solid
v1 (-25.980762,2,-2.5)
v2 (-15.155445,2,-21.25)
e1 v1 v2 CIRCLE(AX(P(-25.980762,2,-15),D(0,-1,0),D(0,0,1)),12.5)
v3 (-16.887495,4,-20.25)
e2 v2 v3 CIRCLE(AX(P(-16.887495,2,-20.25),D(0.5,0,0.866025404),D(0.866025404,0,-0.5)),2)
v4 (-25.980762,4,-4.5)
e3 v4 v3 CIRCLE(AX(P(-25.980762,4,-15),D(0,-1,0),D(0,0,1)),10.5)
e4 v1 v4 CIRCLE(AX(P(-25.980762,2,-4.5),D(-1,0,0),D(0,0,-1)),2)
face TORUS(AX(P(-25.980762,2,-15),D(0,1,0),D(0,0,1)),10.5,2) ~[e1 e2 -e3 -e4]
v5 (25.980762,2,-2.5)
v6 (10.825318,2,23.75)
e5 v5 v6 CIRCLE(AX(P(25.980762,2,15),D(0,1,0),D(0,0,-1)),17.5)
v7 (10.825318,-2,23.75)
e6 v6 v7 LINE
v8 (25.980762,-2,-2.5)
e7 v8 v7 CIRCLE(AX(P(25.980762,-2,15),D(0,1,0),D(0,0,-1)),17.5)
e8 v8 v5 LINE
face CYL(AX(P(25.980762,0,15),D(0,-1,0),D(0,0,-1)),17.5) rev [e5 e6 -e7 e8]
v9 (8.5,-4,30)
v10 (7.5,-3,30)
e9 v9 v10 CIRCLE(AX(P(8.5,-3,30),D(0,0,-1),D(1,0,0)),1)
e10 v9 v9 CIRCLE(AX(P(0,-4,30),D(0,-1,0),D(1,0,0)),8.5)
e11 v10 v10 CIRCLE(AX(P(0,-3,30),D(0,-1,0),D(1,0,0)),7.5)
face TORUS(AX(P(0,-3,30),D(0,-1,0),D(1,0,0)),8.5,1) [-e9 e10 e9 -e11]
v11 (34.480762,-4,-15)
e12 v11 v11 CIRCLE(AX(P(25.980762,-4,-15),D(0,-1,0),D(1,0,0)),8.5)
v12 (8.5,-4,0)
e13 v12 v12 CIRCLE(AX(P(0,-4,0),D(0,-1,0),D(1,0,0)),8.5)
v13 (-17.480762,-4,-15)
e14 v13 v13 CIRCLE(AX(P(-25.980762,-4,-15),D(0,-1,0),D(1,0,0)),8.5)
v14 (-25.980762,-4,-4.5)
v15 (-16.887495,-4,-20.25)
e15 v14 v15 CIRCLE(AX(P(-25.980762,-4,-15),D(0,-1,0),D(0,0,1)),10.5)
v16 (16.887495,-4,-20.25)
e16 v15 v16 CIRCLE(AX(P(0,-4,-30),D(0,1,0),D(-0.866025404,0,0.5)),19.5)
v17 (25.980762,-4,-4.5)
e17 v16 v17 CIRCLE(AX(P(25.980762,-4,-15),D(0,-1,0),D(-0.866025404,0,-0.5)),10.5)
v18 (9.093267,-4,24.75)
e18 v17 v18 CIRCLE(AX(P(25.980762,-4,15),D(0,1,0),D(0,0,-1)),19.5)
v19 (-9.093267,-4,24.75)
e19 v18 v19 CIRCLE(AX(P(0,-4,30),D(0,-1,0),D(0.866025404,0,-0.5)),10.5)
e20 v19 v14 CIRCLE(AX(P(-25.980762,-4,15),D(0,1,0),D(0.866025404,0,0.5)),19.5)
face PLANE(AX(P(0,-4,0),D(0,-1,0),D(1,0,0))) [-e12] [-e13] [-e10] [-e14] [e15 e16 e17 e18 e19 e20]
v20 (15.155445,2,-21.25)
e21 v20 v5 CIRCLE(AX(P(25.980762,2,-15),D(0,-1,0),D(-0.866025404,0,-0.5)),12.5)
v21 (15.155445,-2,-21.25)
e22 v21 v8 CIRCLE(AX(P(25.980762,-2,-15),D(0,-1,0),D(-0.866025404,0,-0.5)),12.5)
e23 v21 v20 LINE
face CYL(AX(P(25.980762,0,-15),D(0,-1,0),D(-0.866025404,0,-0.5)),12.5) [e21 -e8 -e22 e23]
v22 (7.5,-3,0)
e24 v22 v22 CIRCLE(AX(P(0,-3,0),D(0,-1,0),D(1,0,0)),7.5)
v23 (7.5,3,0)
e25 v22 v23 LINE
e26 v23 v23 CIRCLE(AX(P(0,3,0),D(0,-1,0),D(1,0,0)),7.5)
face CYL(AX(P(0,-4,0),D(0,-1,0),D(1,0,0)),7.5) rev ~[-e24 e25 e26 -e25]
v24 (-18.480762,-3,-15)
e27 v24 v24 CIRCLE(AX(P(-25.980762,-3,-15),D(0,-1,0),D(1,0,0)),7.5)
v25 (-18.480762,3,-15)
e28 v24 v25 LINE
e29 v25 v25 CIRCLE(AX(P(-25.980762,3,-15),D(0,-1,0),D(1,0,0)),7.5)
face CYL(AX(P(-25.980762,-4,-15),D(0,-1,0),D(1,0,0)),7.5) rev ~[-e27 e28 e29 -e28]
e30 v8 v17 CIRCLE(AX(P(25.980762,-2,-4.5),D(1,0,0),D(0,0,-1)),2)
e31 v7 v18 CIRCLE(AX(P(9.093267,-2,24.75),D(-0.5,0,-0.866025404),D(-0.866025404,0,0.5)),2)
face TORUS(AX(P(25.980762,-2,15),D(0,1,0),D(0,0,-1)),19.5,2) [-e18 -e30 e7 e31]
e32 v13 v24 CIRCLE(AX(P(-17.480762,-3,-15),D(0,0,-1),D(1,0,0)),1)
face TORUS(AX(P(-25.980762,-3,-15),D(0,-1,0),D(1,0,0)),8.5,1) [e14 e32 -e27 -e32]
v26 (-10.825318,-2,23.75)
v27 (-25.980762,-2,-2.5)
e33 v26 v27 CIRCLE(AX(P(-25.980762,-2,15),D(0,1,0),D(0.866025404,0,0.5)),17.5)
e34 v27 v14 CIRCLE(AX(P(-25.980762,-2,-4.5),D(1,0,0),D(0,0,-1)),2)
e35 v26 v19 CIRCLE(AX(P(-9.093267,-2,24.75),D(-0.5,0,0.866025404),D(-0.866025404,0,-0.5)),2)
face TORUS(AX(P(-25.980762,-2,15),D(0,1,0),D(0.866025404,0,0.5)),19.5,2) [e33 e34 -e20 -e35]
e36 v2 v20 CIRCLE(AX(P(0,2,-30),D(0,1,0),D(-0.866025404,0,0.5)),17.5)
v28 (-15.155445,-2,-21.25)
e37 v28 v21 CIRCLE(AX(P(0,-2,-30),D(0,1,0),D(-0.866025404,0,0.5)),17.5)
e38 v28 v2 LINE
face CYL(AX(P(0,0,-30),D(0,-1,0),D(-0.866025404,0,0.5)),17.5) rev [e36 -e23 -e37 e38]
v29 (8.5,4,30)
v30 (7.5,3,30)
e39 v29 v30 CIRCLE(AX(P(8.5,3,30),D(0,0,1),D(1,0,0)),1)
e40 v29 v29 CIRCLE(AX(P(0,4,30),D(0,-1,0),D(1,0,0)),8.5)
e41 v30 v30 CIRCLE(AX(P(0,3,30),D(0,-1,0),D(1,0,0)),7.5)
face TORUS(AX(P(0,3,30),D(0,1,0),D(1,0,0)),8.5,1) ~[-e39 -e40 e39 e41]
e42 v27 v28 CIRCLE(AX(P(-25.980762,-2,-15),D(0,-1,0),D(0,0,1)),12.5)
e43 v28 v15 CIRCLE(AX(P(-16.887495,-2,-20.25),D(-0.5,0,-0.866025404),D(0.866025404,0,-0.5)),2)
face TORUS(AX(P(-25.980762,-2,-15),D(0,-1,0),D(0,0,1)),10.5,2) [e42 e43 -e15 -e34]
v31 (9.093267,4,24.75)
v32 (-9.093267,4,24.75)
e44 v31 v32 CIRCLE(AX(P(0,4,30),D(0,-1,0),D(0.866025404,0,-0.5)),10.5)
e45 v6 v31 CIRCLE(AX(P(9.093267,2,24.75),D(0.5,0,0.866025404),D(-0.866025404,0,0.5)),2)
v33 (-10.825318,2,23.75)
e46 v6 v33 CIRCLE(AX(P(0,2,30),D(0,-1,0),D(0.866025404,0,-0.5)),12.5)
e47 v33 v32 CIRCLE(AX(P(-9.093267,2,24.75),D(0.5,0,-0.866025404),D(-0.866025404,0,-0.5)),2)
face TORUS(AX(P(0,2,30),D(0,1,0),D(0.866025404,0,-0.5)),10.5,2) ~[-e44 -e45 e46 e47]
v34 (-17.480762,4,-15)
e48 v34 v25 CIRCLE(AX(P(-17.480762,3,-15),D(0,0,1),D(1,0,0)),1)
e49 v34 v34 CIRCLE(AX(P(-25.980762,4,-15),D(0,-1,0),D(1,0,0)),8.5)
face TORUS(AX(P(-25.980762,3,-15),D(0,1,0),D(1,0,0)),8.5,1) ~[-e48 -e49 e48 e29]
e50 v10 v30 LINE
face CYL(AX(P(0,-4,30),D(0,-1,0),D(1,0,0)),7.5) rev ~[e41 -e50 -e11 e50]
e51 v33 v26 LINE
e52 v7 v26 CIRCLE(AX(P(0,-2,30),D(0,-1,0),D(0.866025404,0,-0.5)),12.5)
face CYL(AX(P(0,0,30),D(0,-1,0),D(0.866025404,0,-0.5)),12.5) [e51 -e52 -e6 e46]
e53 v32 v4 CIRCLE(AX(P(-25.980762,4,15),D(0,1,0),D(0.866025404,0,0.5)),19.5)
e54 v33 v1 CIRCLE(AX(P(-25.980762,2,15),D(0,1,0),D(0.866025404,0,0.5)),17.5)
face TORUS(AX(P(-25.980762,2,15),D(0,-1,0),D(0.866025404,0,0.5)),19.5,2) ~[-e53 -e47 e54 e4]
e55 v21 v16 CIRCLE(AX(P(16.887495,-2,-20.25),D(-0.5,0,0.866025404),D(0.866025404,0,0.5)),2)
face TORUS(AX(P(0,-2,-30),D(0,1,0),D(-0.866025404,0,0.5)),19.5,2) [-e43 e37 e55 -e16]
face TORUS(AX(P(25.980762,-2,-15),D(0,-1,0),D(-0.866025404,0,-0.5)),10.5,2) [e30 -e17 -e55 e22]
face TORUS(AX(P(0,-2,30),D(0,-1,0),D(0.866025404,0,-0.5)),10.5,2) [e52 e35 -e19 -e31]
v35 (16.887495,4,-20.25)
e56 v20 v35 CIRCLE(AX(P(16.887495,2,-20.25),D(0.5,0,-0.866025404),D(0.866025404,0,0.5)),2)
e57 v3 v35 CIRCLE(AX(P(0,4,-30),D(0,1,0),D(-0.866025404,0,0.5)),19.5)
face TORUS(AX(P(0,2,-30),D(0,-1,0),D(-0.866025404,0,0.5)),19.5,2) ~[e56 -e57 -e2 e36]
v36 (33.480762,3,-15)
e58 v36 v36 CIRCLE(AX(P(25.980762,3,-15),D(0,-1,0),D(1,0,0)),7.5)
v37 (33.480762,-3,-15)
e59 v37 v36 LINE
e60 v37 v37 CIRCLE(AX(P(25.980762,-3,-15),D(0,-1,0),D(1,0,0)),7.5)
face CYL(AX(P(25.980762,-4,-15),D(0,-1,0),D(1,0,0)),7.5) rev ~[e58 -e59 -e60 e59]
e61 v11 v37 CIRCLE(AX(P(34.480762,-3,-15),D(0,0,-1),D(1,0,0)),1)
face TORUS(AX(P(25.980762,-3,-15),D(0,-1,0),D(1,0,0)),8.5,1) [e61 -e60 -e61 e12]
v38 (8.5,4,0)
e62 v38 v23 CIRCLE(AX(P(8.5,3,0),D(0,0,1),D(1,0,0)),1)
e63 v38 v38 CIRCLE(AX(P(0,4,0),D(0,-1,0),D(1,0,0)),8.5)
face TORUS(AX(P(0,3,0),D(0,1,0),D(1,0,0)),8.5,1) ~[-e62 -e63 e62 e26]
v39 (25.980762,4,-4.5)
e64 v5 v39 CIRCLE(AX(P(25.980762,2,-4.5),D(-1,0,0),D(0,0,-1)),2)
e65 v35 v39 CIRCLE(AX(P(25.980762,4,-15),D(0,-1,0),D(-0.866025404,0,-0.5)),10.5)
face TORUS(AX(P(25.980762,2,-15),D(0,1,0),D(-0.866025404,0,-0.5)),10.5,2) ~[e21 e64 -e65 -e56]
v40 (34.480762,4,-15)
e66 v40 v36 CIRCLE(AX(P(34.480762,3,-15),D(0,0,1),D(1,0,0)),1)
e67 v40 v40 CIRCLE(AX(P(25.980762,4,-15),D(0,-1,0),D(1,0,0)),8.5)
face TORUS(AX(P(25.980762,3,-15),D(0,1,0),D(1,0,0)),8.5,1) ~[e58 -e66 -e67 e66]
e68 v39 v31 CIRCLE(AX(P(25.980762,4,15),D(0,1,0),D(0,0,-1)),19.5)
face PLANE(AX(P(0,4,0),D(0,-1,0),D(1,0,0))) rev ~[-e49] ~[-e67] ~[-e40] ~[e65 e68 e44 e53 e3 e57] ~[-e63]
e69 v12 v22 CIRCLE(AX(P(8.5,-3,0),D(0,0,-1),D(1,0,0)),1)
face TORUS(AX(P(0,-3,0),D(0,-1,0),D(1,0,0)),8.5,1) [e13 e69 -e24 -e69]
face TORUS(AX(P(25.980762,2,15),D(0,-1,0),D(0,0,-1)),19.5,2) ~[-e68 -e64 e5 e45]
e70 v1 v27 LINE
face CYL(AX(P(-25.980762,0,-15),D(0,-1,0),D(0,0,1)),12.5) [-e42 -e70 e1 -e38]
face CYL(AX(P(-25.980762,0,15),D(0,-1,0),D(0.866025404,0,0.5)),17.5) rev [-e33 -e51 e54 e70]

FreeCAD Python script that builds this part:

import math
import FreeCAD as App
import Part
import Sketcher

V = App.Vector
Q = App.Units.Quantity


def edges_at(feature, points):
    """Names of the edges that pass closest to the given points."""
    edges = feature.Shape.Edges
    near = lambda p: min(range(len(edges)), key=lambda i: edges[i].distToShape(Part.Vertex(*p))[0])
    return sorted({f"Edge{near(p) + 1}" for p in points})

doc = App.newDocument("Part")
body = doc.addObject("PartDesign::Body", "Body")

# Sketch on XZ plane
sketch1 = body.newObject("Sketcher::SketchObject", "Sketch")
sketch1.AttachmentSupport = (doc.getObject("XZ_Plane"), [""])
sketch1.MapMode = "FlatFace"
sketch1.addGeometry([
    Part.ArcOfCircle(Part.Circle(V(26, 15, 0), V(0, 0, 1), 18), math.radians(150), math.radians(270)),  # 0
    Part.ArcOfCircle(Part.Circle(V(0, 30, 0), V(0, 0, 1), 12), math.radians(-30), math.radians(210)),  # 1
    Part.ArcOfCircle(Part.Circle(V(-26, 15, 0), V(0, 0, 1), 18), math.radians(-90), math.radians(30)),  # 2
    Part.ArcOfCircle(Part.Circle(V(-26, -15, 0), V(0, 0, 1), 12), math.radians(90), math.radians(330)),  # 3
    Part.ArcOfCircle(Part.Circle(V(0, -30, 0), V(0, 0, 1), 18), math.radians(30), math.radians(150)),  # 4
    Part.ArcOfCircle(Part.Circle(V(26, -15, 0), V(0, 0, 1), 12), math.radians(-150), math.radians(90)),  # 5
], False)
sketch1.addConstraint([
    Sketcher.Constraint("Tangent", 0, 1, 1, 1),
    Sketcher.Constraint("Tangent", 1, 2, 2, 2),
    Sketcher.Constraint("Tangent", 2, 1, 3, 1),
    Sketcher.Constraint("Tangent", 3, 2, 4, 2),
    Sketcher.Constraint("Tangent", 4, 1, 5, 1),
    Sketcher.Constraint("Tangent", 5, 2, 0, 2),
    Sketcher.Constraint("Equal", 0, 2),
    Sketcher.Constraint("Equal", 1, 3),
    Sketcher.Constraint("Equal", 2, 4),
    Sketcher.Constraint("Equal", 3, 5),
    Sketcher.Constraint("Symmetric", 0, 3, 3, 3, -1, 1),
    Sketcher.Constraint("Symmetric", 0, 3, 2, 3, -2),
    Sketcher.Constraint("PointOnObject", 4, 3, -2),
    Sketcher.Constraint("Radius", 0, Q("17.5 mm")),
    Sketcher.Constraint("Radius", 1, Q("12.5 mm")),
    Sketcher.Constraint("DistanceY", -1, 1, 1, 3, Q("30 mm")),
])
pad1 = body.newObject("PartDesign::Pad", "Pad")
pad1.Profile = sketch1
pad1.Length = 8
pad1.Midplane = True
doc.recompute()

fillet = body.newObject("PartDesign::Fillet", "Fillet")
fillet.Base = (pad1, edges_at(pad1, [
    (10.825, -4, 6.25),
    (0, -4, 42.5),
    (-10.825, -4, 6.25),
    (-36.806, -4, -21.25),
    (0, -4, -12.5),
    (36.806, -4, -21.25),
    (10.825, 4, 6.25),
    (0, 4, 42.5),
    (-10.825, 4, 6.25),
    (-36.806, 4, -21.25),
    (0, 4, -12.5),
    (36.806, 4, -21.25),
]))
fillet.Radius = 2

# Sketch on XZ plane
sketch2 = body.newObject("Sketcher::SketchObject", "Sketch001")
sketch2.AttachmentSupport = (doc.getObject("XZ_Plane"), [""])
sketch2.MapMode = "FlatFace"
sketch2.AttachmentOffset = App.Placement(V(0, 0, 4), App.Rotation())
sketch2.addGeometry(Part.Circle(V(0, 0, 0), V(0, 0, 1), 8), False)
sketch2.addConstraint([
    Sketcher.Constraint("Coincident", 0, 3, -1, 1),
    Sketcher.Constraint("Diameter", 0, Q("15 mm")),
])
pocket1 = body.newObject("PartDesign::Pocket", "Pocket")
pocket1.Profile = sketch2
pocket1.Type = "ThroughAll"

# Sketch on XZ plane
sketch3 = body.newObject("Sketcher::SketchObject", "Sketch002")
sketch3.AttachmentSupport = (doc.getObject("XZ_Plane"), [""])
sketch3.MapMode = "FlatFace"
sketch3.AttachmentOffset = App.Placement(V(0, 0, 4), App.Rotation())
sketch3.addGeometry([
    Part.Circle(V(0, 30, 0), V(0, 0, 1), 8),
    Part.Circle(V(-26, -15, 0), V(0, 0, 1), 8),
    Part.Circle(V(26, -15, 0), V(0, 0, 1), 8),
], False)
sketch3.addConstraint([
    Sketcher.Constraint("Equal", 0, 1),
    Sketcher.Constraint("Equal", 1, 2),
    Sketcher.Constraint("Symmetric", 1, 3, 2, 3, -2),
    Sketcher.Constraint("PointOnObject", 0, 3, -2),
    Sketcher.Constraint("Diameter", 0, Q("15 mm")),
    Sketcher.Constraint("DistanceY", -1, 1, 0, 3, Q("30 mm")),
    Sketcher.Constraint("DistanceY", 1, 3, -1, 1, Q("15 mm")),
    Sketcher.Constraint("DistanceX", 1, 3, -1, 1, Q("25.980762 mm")),
])
pocket2 = body.newObject("PartDesign::Pocket", "Pocket001")
pocket2.Profile = sketch3
pocket2.Type = "ThroughAll"
doc.recompute()

fillet2 = body.newObject("PartDesign::Fillet", "Fillet001")
fillet2.Base = (pocket2, edges_at(pocket2, [
    (9.093, -4, 5.25),
    (35.074, -4, -20.25),
    (0, -4, 40.5),
    (0, -4, -10.5),
    (-9.093, -4, 5.25),
    (-35.074, -4, -20.25),
    (-33.481, -4, -15),
    (18.481, -4, -15),
    (-7.5, -4, 0),
    (-7.5, -4, 30),
    (9.093, 4, 5.25),
    (35.074, 4, -20.25),
    (0, 4, 40.5),
    (0, 4, -10.5),
    (-9.093, 4, 5.25),
    (-35.074, 4, -20.25),
    (-33.481, 4, -15),
    (18.481, 4, -15),
    (-7.5, 4, 0),
    (-7.5, 4, 30),
]))
fillet2.Radius = 1

doc.recompute()
